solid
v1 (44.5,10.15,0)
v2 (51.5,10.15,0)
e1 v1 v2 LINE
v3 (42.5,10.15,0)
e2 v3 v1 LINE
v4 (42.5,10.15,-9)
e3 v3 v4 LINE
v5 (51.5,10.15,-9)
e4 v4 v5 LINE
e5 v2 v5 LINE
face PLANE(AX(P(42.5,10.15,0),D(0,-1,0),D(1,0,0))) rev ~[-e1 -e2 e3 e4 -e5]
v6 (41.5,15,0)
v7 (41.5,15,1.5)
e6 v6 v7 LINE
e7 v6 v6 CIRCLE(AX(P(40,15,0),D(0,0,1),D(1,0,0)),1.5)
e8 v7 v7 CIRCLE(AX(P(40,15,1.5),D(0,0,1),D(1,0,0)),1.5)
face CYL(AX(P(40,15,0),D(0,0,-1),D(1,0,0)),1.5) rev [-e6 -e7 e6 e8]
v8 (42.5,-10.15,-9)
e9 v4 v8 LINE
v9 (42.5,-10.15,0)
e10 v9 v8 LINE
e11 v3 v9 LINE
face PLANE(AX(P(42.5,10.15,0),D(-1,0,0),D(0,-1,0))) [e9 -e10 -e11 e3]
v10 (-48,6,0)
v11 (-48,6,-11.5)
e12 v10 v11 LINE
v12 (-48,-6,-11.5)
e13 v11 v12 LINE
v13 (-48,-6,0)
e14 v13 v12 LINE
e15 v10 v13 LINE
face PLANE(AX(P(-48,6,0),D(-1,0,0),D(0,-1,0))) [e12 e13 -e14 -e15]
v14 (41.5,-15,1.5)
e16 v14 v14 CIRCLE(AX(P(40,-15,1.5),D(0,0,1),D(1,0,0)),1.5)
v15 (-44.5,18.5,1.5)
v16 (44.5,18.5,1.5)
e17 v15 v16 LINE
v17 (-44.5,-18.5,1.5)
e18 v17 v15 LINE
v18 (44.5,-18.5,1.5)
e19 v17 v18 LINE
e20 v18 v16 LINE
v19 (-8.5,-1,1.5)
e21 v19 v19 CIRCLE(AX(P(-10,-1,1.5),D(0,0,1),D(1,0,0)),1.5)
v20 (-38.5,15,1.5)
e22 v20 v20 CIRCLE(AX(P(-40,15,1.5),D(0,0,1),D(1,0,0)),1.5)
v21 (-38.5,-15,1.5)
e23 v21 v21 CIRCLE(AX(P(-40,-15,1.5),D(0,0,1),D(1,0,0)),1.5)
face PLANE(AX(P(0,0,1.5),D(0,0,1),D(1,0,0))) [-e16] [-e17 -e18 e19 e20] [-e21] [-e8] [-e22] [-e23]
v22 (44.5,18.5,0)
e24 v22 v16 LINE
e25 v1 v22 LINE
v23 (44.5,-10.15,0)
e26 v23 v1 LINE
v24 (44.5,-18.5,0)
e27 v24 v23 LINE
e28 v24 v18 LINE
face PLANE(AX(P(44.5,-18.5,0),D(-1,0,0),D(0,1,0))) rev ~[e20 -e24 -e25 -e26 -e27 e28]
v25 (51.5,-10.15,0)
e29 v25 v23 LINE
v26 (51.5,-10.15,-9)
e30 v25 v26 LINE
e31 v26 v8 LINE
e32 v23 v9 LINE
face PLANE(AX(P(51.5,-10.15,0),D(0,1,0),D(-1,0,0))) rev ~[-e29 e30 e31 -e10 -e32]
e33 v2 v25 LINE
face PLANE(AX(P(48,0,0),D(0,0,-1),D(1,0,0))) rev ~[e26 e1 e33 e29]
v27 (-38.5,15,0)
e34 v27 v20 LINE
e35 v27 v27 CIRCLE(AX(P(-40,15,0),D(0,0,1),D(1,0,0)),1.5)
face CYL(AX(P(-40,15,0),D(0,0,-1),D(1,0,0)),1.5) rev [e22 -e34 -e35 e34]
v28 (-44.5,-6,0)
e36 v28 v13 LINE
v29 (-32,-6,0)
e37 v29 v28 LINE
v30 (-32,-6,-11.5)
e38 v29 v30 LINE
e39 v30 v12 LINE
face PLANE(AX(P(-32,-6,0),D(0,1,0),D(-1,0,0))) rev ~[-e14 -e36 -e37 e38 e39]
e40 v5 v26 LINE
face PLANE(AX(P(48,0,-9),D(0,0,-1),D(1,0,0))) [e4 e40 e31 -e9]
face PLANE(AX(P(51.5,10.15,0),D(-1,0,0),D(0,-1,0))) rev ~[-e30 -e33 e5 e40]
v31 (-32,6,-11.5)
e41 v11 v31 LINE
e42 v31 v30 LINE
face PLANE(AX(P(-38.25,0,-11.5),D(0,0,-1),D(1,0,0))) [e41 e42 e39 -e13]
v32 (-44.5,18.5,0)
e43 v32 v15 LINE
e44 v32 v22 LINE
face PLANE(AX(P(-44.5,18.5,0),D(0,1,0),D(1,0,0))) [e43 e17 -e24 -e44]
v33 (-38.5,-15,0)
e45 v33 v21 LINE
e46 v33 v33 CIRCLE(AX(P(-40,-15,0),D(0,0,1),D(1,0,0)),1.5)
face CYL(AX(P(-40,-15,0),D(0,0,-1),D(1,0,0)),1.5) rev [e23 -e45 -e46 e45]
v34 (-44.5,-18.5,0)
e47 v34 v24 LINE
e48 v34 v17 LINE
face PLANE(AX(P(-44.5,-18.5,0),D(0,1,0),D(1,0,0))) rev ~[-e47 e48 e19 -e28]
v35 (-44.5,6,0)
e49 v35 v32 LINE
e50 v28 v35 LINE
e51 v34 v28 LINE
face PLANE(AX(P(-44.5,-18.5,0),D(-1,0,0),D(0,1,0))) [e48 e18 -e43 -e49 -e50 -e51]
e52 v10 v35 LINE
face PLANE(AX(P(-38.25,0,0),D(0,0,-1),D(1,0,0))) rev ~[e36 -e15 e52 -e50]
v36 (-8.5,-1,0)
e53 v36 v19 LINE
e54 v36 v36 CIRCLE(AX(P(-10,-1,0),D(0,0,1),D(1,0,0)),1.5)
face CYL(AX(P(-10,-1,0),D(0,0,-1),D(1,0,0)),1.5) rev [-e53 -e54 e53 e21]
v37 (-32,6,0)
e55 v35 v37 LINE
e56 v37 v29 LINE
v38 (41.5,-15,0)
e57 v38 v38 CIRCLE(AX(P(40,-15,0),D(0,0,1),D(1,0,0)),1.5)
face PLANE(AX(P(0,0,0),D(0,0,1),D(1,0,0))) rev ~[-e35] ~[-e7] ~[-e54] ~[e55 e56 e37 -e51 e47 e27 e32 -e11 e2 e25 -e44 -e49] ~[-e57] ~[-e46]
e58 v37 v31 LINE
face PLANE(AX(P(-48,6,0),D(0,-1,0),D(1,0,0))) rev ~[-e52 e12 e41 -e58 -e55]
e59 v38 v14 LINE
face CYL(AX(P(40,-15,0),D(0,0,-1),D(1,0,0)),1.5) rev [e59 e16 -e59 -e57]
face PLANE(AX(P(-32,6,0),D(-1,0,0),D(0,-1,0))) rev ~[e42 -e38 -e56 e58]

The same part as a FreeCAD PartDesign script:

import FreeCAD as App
import Part
import Sketcher

V = App.Vector


def add_polygon(sketch, points):
    """Adds a closed chain of lines whose ends are joined by coincident constraints."""
    first, n = sketch.GeometryCount, len(points)
    for a, b in zip(points, points[1:] + points[:1]):
        sketch.addGeometry(Part.LineSegment(App.Vector(*a, 0), App.Vector(*b, 0)), False)
    for i in range(n):
        sketch.addConstraint(Sketcher.Constraint("Coincident", first + i, 2, first + (i + 1) % n, 1))

doc = App.newDocument("Part")
params = doc.addObject("Spreadsheet::Sheet", "Params")
for row, (alias, value) in enumerate([
    ("sketch1_diameter", "3 mm"),
    ("sketch1_width", "89 mm"),
    ("sketch1_height", "37 mm"),
    ("pad1_length", "1.5 mm"),
    ("sketch2_width", "16 mm"),
    ("sketch2_height", "12 mm"),
    ("pad2_length", "11.5 mm"),
    ("sketch3_width", "9 mm"),
    ("sketch3_height", "20.3 mm"),
    ("pad3_length", "9 mm"),
], start=1):
    params.set(f"A{row}", alias)
    params.set(f"B{row}", "=" + value)
    params.setAlias(f"B{row}", alias)

body = doc.addObject("PartDesign::Body", "Body")

sketch1 = body.newObject("Sketcher::SketchObject", "Sketch")
sketch1.AttachmentSupport = (doc.getObject("XY_Plane"), [""])
sketch1.MapMode = "FlatFace"
add_polygon(sketch1, [(-44.5, 18.5), (-44.5, -18.5), (44.5, -18.5), (44.5, 18.5)])
sketch1.addGeometry(Part.Circle(V(-40, -15, 0), V(0, 0, 1), 1.5), False)
sketch1.addGeometry(Part.Circle(V(-10, -1, 0), V(0, 0, 1), 1.5), False)
sketch1.addGeometry(Part.Circle(V(40, -15, 0), V(0, 0, 1), 1.5), False)
sketch1.addGeometry(Part.Circle(V(-40, 15, 0), V(0, 0, 1), 1.5), False)
sketch1.addGeometry(Part.Circle(V(40, 15, 0), V(0, 0, 1), 1.5), False)
sketch1.addConstraint(Sketcher.Constraint("Vertical", 0))
sketch1.addConstraint(Sketcher.Constraint("Horizontal", 1))
sketch1.addConstraint(Sketcher.Constraint("Vertical", 2))
sketch1.addConstraint(Sketcher.Constraint("Horizontal", 3))
sketch1.addConstraint(Sketcher.Constraint("Equal", 4, 5))
sketch1.addConstraint(Sketcher.Constraint("Equal", 5, 6))
sketch1.addConstraint(Sketcher.Constraint("Equal", 6, 7))
sketch1.addConstraint(Sketcher.Constraint("Equal", 7, 8))
sketch1.addConstraint(Sketcher.Constraint("Symmetric", 6, 3, 7, 3, -1, 1))
sketch1.addConstraint(Sketcher.Constraint("Symmetric", 4, 3, 8, 3, -1, 1))
sketch1.addConstraint(Sketcher.Constraint("Symmetric", 0, 2, 2, 2, -1, 1))
sketch1.addConstraint(Sketcher.Constraint("Symmetric", 4, 3, 6, 3, -2))
sketch1.addConstraint(Sketcher.Constraint("Diameter", 4, 3.0))
sketch1.addConstraint(Sketcher.Constraint("DistanceX", 1, 1, 1, 2, 89.0))
sketch1.addConstraint(Sketcher.Constraint("DistanceY", 0, 2, 0, 1, 37.0))
sketch1.addConstraint(Sketcher.Constraint("DistanceX", 4, 3, -1, 1, 40.0))
sketch1.addConstraint(Sketcher.Constraint("DistanceY", 4, 3, -1, 1, 15.0))
sketch1.addConstraint(Sketcher.Constraint("DistanceX", 5, 3, -1, 1, 10.0))
sketch1.addConstraint(Sketcher.Constraint("DistanceY", 5, 3, -1, 1, 1.0))
sketch1.setExpression("Constraints[16]", "Params.sketch1_diameter")
sketch1.setExpression("Constraints[17]", "Params.sketch1_width")
sketch1.setExpression("Constraints[18]", "Params.sketch1_height")
pad1 = body.newObject("PartDesign::Pad", "Pad")
pad1.Profile = sketch1
pad1.setExpression("Length", "Params.pad1_length")

sketch2 = body.newObject("Sketcher::SketchObject", "Sketch001")
sketch2.AttachmentSupport = (doc.getObject("XY_Plane"), [""])
sketch2.MapMode = "FlatFace"
add_polygon(sketch2, [(-32, 6), (-32, -6), (-48, -6), (-48, 6)])
sketch2.addConstraint(Sketcher.Constraint("Vertical", 0))
sketch2.addConstraint(Sketcher.Constraint("Horizontal", 1))
sketch2.addConstraint(Sketcher.Constraint("Vertical", 2))
sketch2.addConstraint(Sketcher.Constraint("Horizontal", 3))
sketch2.addConstraint(Sketcher.Constraint("DistanceX", 1, 2, 1, 1, 16.0))
sketch2.addConstraint(Sketcher.Constraint("DistanceY", 0, 2, 0, 1, 12.0))
sketch2.addConstraint(Sketcher.Constraint("DistanceX", 0, 2, -1, 1, 32.0))
sketch2.addConstraint(Sketcher.Constraint("DistanceY", 0, 2, -1, 1, 6.0))
sketch2.setExpression("Constraints[8]", "Params.sketch2_width")
sketch2.setExpression("Constraints[9]", "Params.sketch2_height")
pad2 = body.newObject("PartDesign::Pad", "Pad001")
pad2.Profile = sketch2
pad2.setExpression("Length", "Params.pad2_length")
pad2.Reversed = True

sketch3 = body.newObject("Sketcher::SketchObject", "Sketch002")
sketch3.AttachmentSupport = (doc.getObject("XY_Plane"), [""])
sketch3.MapMode = "FlatFace"
add_polygon(sketch3, [(52, 10), (52, -10), (42, -10), (42, 10)])
sketch3.addConstraint(Sketcher.Constraint("Vertical", 0))
sketch3.addConstraint(Sketcher.Constraint("Horizontal", 1))
sketch3.addConstraint(Sketcher.Constraint("Vertical", 2))
sketch3.addConstraint(Sketcher.Constraint("Horizontal", 3))
sketch3.addConstraint(Sketcher.Constraint("DistanceX", 1, 2, 1, 1, 9.0))
sketch3.addConstraint(Sketcher.Constraint("DistanceY", 0, 2, 0, 1, 20.3))
sketch3.addConstraint(Sketcher.Constraint("DistanceX", -1, 1, 0, 2, 51.5))
sketch3.addConstraint(Sketcher.Constraint("DistanceY", 0, 2, -1, 1, 10.15))
sketch3.setExpression("Constraints[8]", "Params.sketch3_width")
sketch3.setExpression("Constraints[9]", "Params.sketch3_height")
pad3 = body.newObject("PartDesign::Pad", "Pad002")
pad3.Profile = sketch3
pad3.setExpression("Length", "Params.pad3_length")
pad3.Reversed = True

doc.recompute()
